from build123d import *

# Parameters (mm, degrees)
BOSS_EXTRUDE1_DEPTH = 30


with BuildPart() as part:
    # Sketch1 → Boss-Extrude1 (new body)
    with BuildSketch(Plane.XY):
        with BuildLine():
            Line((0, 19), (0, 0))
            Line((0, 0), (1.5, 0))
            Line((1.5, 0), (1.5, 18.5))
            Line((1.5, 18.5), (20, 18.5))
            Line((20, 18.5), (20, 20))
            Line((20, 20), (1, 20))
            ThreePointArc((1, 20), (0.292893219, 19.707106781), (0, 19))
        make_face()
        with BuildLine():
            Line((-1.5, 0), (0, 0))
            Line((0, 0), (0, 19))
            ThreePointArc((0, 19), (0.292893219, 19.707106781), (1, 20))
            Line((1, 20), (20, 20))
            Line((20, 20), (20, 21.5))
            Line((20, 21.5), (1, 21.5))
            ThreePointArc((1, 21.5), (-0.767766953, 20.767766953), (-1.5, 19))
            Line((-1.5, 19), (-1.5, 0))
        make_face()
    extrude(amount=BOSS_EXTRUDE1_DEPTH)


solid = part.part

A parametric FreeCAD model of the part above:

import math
import FreeCAD as App
import Part
import Sketcher

V = App.Vector

doc = App.newDocument("Part")
params = doc.addObject("Spreadsheet::Sheet", "Params")
for row, (alias, value) in enumerate([
    ("sketch1_radius", "2.5 mm"),
    ("sketch1_width", "19 mm"),
    ("sketch1_width2", "3 mm"),
    ("pad1_length", "30 mm"),
], start=1):
    params.set(f"A{row}", alias)
    params.set(f"B{row}", "=" + value)
    params.setAlias(f"B{row}", alias)

body = doc.addObject("PartDesign::Body", "Body")

# Sketch on XY plane
sketch1 = body.newObject("Sketcher::SketchObject", "Sketch")
sketch1.AttachmentSupport = (doc.getObject("XY_Plane"), [""])
sketch1.MapMode = "FlatFace"
sketch1.addGeometry([
    Part.LineSegment(V(1.5, 0, 0), V(1.5, 18.5, 0)),  # 0
    Part.LineSegment(V(1.5, 18.5, 0), V(20, 18.5, 0)),  # 1
    Part.LineSegment(V(20, 18.5, 0), V(20, 21.5, 0)),  # 2
    Part.LineSegment(V(20, 21.5, 0), V(1, 21.5, 0)),  # 3
    Part.ArcOfCircle(Part.Circle(V(1, 19, 0), V(0, 0, 1), 2.5), math.radians(90), math.radians(180)),  # 4
    Part.LineSegment(V(-1.5, 19, 0), V(-1.5, 0, 0)),  # 5
    Part.LineSegment(V(-1.5, 0, 0), V(1.5, 0, 0)),  # 6
], False)
sketch1.addConstraint([
    Sketcher.Constraint("Coincident", 0, 2, 1, 1),
    Sketcher.Constraint("Coincident", 1, 2, 2, 1),
    Sketcher.Constraint("Coincident", 2, 2, 3, 1),
    Sketcher.Constraint("Tangent", 3, 2, 4, 1),
    Sketcher.Constraint("Tangent", 4, 2, 5, 1),
    Sketcher.Constraint("Coincident", 5, 2, 6, 1),
    Sketcher.Constraint("Coincident", 6, 2, 0, 1),
    Sketcher.Constraint("Vertical", 0),
    Sketcher.Constraint("Horizontal", 1),
    Sketcher.Constraint("Vertical", 2),
    Sketcher.Constraint("Horizontal", 3),
    Sketcher.Constraint("Vertical", 5),
    Sketcher.Constraint("Horizontal", 6),
    Sketcher.Constraint("Symmetric", 5, 2, 6, 2, -1, 1),
    Sketcher.Constraint("Equal", 1, 0),
    Sketcher.Constraint("Equal", 6, 2),
    Sketcher.Constraint("Radius", 4, 2.5),
    Sketcher.Constraint("DistanceX", 3, 2, 3, 1, 19.0),
    Sketcher.Constraint("DistanceX", 6, 1, 6, 2, 3.0),
])
sketch1.setExpression("Constraints[16]", "Params.sketch1_radius")
sketch1.setExpression("Constraints[17]", "Params.sketch1_width")
sketch1.setExpression("Constraints[18]", "Params.sketch1_width2")
pad1 = body.newObject("PartDesign::Pad", "Pad")
pad1.Profile = sketch1
pad1.setExpression("Length", "Params.pad1_length")

doc.recompute()
